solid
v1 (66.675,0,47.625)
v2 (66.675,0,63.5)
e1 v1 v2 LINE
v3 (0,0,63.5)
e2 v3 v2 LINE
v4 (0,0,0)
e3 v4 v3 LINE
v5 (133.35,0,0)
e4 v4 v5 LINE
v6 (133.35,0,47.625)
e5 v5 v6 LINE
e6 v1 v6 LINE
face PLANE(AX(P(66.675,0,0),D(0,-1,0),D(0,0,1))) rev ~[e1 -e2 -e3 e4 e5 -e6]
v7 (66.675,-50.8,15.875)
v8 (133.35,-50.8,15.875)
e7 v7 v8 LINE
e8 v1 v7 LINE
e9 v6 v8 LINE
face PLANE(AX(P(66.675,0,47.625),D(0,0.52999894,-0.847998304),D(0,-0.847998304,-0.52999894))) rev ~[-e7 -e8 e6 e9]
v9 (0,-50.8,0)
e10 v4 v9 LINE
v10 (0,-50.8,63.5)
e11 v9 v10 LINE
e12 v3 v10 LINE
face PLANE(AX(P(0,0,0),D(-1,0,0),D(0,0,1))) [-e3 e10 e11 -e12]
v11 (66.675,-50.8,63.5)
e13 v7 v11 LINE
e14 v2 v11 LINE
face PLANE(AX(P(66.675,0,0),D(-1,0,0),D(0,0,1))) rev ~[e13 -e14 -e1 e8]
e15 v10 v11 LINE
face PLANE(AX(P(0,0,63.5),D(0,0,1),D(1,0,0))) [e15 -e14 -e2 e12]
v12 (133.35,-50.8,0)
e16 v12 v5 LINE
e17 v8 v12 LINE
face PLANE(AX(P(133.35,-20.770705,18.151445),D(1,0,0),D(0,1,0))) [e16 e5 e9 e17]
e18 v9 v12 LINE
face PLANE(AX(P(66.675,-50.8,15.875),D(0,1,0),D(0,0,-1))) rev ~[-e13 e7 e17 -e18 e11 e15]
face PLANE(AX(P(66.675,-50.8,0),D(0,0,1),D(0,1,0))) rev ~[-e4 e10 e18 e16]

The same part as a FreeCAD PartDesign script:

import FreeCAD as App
import Part
import Sketcher
Q = App.Units.Quantity


def add_polygon(sketch, points):
    """Adds a closed chain of lines whose ends are joined by coincident constraints."""
    first, n = sketch.GeometryCount, len(points)
    for a, b in zip(points, points[1:] + points[:1]):
        sketch.addGeometry(Part.LineSegment(App.Vector(*a, 0), App.Vector(*b, 0)), False)
    for i in range(n):
        sketch.addConstraint(Sketcher.Constraint("Coincident", first + i, 2, first + (i + 1) % n, 1))

doc = App.newDocument("Part")
params = doc.addObject("Spreadsheet::Sheet", "Params")
for row, (alias, value) in enumerate([
    ("sketch1_height", "2.5 in"),
    ("sketch1_width", "2.625 in"),
    ("pad1_length", "2 in"),
    ("sketch2_width", "2 in"),
    ("sketch2_height", "0.625 in"),
    ("sketch2_height2", "1.875 in"),
    ("pad2_length", "2.625 in"),
], start=1):
    params.set(f"A{row}", alias)
    params.set(f"B{row}", "=" + value)
    params.setAlias(f"B{row}", alias)

body = doc.addObject("PartDesign::Body", "Body")

sketch1 = body.newObject("Sketcher::SketchObject", "Sketch")
sketch1.AttachmentSupport = (doc.getObject("XZ_Plane"), [""])
sketch1.MapMode = "FlatFace"
add_polygon(sketch1, [(0, 63.5), (0, 0), (66.675, 0), (66.675, 63.5)])
sketch1.addConstraint(Sketcher.Constraint("Vertical", 0))
sketch1.addConstraint(Sketcher.Constraint("Horizontal", 1))
sketch1.addConstraint(Sketcher.Constraint("Vertical", 2))
sketch1.addConstraint(Sketcher.Constraint("Horizontal", 3))
sketch1.addConstraint(Sketcher.Constraint("Coincident", 0, 2, -1, 1))
sketch1.addConstraint(Sketcher.Constraint("DistanceY", 0, 2, 0, 1, Q("2.5 in")))
sketch1.addConstraint(Sketcher.Constraint("DistanceX", 1, 1, 1, 2, Q("2.625 in")))
sketch1.setExpression("Constraints[9]", "Params.sketch1_height")
sketch1.setExpression("Constraints[10]", "Params.sketch1_width")
pad1 = body.newObject("PartDesign::Pad", "Pad")
pad1.Profile = sketch1
pad1.setExpression("Length", "Params.pad1_length")

sketch2 = body.newObject("Sketcher::SketchObject", "Sketch001")
sketch2.AttachmentSupport = (doc.getObject("YZ_Plane"), [""])
sketch2.MapMode = "FlatFace"
sketch2.AttachmentOffset = App.Placement(App.Vector(0, 0, 2.625 * 25.4), App.Rotation())
add_polygon(sketch2, [(-50.8, 15.875), (-50.8, 0), (0, 0), (0, 47.625)])
sketch2.addConstraint(Sketcher.Constraint("Vertical", 0))
sketch2.addConstraint(Sketcher.Constraint("Horizontal", 1))
sketch2.addConstraint(Sketcher.Constraint("Vertical", 2))
sketch2.addConstraint(Sketcher.Constraint("Coincident", 1, 2, -1, 1))
sketch2.addConstraint(Sketcher.Constraint("DistanceX", 1, 1, 1, 2, Q("2 in")))
sketch2.addConstraint(Sketcher.Constraint("DistanceY", 0, 2, 0, 1, Q("0.625 in")))
sketch2.addConstraint(Sketcher.Constraint("DistanceY", 2, 1, 2, 2, Q("1.875 in")))
sketch2.setExpression("Constraints[8]", "Params.sketch2_width")
sketch2.setExpression("Constraints[9]", "Params.sketch2_height")
sketch2.setExpression("Constraints[10]", "Params.sketch2_height2")
pad2 = body.newObject("PartDesign::Pad", "Pad001")
pad2.Profile = sketch2
pad2.setExpression("Length", "Params.pad2_length")

doc.recompute()
